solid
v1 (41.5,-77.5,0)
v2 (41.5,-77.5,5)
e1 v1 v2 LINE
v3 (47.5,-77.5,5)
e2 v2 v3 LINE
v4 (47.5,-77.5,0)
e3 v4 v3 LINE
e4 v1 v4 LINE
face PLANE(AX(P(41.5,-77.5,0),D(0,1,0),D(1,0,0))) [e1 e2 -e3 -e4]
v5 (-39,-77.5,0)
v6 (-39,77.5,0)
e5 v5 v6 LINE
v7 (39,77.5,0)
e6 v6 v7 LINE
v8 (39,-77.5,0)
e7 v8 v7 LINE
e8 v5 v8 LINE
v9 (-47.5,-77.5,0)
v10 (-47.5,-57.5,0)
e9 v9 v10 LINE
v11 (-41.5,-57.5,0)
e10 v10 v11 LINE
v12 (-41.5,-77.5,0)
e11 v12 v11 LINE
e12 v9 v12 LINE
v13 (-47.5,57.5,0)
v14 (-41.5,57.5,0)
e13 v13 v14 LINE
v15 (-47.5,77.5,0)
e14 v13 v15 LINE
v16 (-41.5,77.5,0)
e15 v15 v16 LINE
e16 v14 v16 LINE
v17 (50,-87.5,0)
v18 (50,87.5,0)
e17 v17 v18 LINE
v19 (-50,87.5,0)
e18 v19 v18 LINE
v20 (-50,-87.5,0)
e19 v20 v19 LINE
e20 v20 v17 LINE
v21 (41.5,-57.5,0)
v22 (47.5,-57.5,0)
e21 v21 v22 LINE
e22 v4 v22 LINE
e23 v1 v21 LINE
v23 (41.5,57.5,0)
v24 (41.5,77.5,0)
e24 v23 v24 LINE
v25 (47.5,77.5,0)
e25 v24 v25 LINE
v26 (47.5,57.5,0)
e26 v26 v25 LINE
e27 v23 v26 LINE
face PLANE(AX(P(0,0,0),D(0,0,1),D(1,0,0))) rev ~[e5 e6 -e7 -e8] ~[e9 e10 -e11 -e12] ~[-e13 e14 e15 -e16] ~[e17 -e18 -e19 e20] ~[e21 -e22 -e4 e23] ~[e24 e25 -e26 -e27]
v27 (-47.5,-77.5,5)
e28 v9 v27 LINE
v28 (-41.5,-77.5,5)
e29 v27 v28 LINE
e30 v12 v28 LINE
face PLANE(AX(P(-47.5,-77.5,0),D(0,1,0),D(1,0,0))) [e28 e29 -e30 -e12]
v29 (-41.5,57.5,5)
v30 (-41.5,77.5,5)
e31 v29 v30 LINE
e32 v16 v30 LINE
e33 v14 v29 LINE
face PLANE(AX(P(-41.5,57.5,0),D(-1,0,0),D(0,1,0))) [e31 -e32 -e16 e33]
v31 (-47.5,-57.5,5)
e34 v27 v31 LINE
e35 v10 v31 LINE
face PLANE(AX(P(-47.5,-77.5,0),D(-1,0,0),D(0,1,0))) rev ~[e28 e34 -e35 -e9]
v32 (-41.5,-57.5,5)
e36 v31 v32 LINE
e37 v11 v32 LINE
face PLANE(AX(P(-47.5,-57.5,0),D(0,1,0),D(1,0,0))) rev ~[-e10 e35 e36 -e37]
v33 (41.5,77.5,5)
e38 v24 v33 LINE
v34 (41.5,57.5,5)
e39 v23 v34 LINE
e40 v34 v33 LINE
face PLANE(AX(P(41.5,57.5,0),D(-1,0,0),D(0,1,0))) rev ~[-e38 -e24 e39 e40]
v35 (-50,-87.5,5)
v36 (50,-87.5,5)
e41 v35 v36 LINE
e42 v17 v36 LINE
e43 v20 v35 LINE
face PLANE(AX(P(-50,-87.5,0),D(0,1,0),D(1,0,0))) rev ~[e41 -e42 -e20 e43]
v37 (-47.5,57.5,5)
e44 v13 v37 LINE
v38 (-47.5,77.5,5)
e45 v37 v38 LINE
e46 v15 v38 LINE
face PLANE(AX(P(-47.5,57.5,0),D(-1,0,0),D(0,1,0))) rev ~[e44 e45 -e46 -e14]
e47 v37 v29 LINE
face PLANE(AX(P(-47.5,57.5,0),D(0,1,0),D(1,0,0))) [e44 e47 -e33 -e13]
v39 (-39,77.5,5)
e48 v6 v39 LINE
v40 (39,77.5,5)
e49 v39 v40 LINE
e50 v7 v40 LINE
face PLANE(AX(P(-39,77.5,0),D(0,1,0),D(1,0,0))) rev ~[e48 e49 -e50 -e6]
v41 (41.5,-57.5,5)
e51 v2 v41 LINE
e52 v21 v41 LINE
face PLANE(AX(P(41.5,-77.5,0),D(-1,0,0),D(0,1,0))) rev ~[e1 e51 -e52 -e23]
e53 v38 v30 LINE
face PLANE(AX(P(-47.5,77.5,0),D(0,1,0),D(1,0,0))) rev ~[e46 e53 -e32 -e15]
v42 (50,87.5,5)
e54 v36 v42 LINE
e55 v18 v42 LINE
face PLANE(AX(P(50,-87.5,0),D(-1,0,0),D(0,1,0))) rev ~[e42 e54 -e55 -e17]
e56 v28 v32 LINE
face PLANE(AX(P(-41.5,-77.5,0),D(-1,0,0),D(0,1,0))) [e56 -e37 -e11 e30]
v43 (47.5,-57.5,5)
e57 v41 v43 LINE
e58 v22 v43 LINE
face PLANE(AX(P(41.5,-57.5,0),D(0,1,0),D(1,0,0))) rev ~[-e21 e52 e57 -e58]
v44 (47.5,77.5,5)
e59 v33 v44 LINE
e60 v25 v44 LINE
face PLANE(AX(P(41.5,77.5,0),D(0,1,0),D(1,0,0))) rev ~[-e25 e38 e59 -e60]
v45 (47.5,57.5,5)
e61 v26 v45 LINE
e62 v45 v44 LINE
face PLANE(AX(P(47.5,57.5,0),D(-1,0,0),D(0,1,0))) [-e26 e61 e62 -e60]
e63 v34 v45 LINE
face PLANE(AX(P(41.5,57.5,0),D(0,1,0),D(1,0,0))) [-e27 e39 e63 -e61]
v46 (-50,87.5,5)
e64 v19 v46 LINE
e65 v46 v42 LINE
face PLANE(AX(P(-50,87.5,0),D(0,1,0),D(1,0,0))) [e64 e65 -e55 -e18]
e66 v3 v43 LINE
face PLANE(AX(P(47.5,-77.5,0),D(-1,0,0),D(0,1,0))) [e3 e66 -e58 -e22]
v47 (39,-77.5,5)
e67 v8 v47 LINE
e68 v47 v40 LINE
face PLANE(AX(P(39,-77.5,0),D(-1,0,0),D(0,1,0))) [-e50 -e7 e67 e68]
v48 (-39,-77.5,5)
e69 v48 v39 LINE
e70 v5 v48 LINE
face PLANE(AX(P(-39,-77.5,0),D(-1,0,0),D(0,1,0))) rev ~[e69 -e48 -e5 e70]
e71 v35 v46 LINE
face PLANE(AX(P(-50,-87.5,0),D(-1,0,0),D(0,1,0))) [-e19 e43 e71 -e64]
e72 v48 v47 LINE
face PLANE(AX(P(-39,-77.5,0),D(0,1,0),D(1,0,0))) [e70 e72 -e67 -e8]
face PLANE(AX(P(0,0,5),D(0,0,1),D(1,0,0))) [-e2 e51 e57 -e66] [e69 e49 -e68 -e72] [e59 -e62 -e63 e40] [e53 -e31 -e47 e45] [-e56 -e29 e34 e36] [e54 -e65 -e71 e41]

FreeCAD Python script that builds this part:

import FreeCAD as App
import Part
import Sketcher
from FreeCAD import Vector
Q = App.Units.Quantity


def add_polygon(sketch, points):
    """Adds a closed chain of lines whose ends are joined by coincident constraints."""
    first, n = sketch.GeometryCount, len(points)
    for a, b in zip(points, points[1:] + points[:1]):
        sketch.addGeometry(Part.LineSegment(App.Vector(*a, 0), App.Vector(*b, 0)), False)
    for i in range(n):
        sketch.addConstraint(Sketcher.Constraint("Coincident", first + i, 2, first + (i + 1) % n, 1))

doc = App.newDocument("Part")
body = doc.addObject("PartDesign::Body", "Body")

# Sketch on XY plane
sketch1 = body.newObject("Sketcher::SketchObject", "Sketch")
sketch1.AttachmentSupport = (doc.getObject("XY_Plane"), [""])
sketch1.MapMode = "FlatFace"
add_polygon(sketch1, [(-50, 88), (-50, -88), (50, -88), (50, 88)])  # lines 0-3
add_polygon(sketch1, [(-42, -78), (-48, -78), (-48, -58), (-42, -58)])  # lines 4-7
add_polygon(sketch1, [(48, -78), (42, -78), (42, -58), (48, -58)])  # lines 8-11
add_polygon(sketch1, [(-42, 58), (-48, 58), (-48, 78), (-42, 78)])  # lines 12-15
add_polygon(sketch1, [(39, -78), (-39, -78), (-39, 78), (39, 78)])  # lines 16-19
add_polygon(sketch1, [(48, 58), (42, 58), (42, 78), (48, 78)])  # lines 20-23
sketch1.addConstraint([
    Sketcher.Constraint("Vertical", 0),
    Sketcher.Constraint("Horizontal", 1),
    Sketcher.Constraint("Vertical", 2),
    Sketcher.Constraint("Horizontal", 3),
    Sketcher.Constraint("Horizontal", 4),
    Sketcher.Constraint("Vertical", 5),
    Sketcher.Constraint("Horizontal", 6),
    Sketcher.Constraint("Vertical", 7),
    Sketcher.Constraint("Horizontal", 8),
    Sketcher.Constraint("Vertical", 9),
    Sketcher.Constraint("Horizontal", 10),
    Sketcher.Constraint("Vertical", 11),
    Sketcher.Constraint("Horizontal", 12),
    Sketcher.Constraint("Vertical", 13),
    Sketcher.Constraint("Horizontal", 14),
    Sketcher.Constraint("Vertical", 15),
    Sketcher.Constraint("Horizontal", 16),
    Sketcher.Constraint("Vertical", 17),
    Sketcher.Constraint("Horizontal", 18),
    Sketcher.Constraint("Vertical", 19),
    Sketcher.Constraint("Horizontal", 20),
    Sketcher.Constraint("Vertical", 21),
    Sketcher.Constraint("Horizontal", 22),
    Sketcher.Constraint("Vertical", 23),
    Sketcher.Constraint("Symmetric", 0, 2, 2, 2, -1, 1),
    Sketcher.Constraint("Symmetric", 10, 2, 12, 2, -1, 1),
    Sketcher.Constraint("Symmetric", 8, 2, 14, 2, -1, 1),
    Sketcher.Constraint("Symmetric", 16, 2, 18, 2, -1, 1),
    Sketcher.Constraint("Symmetric", 6, 2, 20, 2, -1, 1),
    Sketcher.Constraint("Symmetric", 4, 2, 22, 2, -1, 1),
    Sketcher.Constraint("Symmetric", 7, 2, 8, 2, -2),
    Sketcher.Constraint("Symmetric", 5, 2, 10, 2, -2),
    Sketcher.Constraint("Horizontal", 11, 2, 16, 2),
    Sketcher.Constraint("DistanceX", 1, 1, 1, 2, Q("100 mm")),
    Sketcher.Constraint("DistanceX", 4, 2, 4, 1, Q("6 mm")),
    Sketcher.Constraint("DistanceX", 16, 2, 16, 1, Q("78 mm")),
    Sketcher.Constraint("DistanceY", 0, 2, 0, 1, Q("175 mm")),
    Sketcher.Constraint("DistanceY", 5, 1, 5, 2, Q("20 mm")),
    Sketcher.Constraint("DistanceY", 17, 1, 17, 2, Q("155 mm")),
    Sketcher.Constraint("DistanceX", 7, 2, 8, 2, Q("83 mm")),
])
pad1 = body.newObject("PartDesign::Pad", "Pad")
pad1.Profile = sketch1
pad1.Length = 5

doc.recompute()
